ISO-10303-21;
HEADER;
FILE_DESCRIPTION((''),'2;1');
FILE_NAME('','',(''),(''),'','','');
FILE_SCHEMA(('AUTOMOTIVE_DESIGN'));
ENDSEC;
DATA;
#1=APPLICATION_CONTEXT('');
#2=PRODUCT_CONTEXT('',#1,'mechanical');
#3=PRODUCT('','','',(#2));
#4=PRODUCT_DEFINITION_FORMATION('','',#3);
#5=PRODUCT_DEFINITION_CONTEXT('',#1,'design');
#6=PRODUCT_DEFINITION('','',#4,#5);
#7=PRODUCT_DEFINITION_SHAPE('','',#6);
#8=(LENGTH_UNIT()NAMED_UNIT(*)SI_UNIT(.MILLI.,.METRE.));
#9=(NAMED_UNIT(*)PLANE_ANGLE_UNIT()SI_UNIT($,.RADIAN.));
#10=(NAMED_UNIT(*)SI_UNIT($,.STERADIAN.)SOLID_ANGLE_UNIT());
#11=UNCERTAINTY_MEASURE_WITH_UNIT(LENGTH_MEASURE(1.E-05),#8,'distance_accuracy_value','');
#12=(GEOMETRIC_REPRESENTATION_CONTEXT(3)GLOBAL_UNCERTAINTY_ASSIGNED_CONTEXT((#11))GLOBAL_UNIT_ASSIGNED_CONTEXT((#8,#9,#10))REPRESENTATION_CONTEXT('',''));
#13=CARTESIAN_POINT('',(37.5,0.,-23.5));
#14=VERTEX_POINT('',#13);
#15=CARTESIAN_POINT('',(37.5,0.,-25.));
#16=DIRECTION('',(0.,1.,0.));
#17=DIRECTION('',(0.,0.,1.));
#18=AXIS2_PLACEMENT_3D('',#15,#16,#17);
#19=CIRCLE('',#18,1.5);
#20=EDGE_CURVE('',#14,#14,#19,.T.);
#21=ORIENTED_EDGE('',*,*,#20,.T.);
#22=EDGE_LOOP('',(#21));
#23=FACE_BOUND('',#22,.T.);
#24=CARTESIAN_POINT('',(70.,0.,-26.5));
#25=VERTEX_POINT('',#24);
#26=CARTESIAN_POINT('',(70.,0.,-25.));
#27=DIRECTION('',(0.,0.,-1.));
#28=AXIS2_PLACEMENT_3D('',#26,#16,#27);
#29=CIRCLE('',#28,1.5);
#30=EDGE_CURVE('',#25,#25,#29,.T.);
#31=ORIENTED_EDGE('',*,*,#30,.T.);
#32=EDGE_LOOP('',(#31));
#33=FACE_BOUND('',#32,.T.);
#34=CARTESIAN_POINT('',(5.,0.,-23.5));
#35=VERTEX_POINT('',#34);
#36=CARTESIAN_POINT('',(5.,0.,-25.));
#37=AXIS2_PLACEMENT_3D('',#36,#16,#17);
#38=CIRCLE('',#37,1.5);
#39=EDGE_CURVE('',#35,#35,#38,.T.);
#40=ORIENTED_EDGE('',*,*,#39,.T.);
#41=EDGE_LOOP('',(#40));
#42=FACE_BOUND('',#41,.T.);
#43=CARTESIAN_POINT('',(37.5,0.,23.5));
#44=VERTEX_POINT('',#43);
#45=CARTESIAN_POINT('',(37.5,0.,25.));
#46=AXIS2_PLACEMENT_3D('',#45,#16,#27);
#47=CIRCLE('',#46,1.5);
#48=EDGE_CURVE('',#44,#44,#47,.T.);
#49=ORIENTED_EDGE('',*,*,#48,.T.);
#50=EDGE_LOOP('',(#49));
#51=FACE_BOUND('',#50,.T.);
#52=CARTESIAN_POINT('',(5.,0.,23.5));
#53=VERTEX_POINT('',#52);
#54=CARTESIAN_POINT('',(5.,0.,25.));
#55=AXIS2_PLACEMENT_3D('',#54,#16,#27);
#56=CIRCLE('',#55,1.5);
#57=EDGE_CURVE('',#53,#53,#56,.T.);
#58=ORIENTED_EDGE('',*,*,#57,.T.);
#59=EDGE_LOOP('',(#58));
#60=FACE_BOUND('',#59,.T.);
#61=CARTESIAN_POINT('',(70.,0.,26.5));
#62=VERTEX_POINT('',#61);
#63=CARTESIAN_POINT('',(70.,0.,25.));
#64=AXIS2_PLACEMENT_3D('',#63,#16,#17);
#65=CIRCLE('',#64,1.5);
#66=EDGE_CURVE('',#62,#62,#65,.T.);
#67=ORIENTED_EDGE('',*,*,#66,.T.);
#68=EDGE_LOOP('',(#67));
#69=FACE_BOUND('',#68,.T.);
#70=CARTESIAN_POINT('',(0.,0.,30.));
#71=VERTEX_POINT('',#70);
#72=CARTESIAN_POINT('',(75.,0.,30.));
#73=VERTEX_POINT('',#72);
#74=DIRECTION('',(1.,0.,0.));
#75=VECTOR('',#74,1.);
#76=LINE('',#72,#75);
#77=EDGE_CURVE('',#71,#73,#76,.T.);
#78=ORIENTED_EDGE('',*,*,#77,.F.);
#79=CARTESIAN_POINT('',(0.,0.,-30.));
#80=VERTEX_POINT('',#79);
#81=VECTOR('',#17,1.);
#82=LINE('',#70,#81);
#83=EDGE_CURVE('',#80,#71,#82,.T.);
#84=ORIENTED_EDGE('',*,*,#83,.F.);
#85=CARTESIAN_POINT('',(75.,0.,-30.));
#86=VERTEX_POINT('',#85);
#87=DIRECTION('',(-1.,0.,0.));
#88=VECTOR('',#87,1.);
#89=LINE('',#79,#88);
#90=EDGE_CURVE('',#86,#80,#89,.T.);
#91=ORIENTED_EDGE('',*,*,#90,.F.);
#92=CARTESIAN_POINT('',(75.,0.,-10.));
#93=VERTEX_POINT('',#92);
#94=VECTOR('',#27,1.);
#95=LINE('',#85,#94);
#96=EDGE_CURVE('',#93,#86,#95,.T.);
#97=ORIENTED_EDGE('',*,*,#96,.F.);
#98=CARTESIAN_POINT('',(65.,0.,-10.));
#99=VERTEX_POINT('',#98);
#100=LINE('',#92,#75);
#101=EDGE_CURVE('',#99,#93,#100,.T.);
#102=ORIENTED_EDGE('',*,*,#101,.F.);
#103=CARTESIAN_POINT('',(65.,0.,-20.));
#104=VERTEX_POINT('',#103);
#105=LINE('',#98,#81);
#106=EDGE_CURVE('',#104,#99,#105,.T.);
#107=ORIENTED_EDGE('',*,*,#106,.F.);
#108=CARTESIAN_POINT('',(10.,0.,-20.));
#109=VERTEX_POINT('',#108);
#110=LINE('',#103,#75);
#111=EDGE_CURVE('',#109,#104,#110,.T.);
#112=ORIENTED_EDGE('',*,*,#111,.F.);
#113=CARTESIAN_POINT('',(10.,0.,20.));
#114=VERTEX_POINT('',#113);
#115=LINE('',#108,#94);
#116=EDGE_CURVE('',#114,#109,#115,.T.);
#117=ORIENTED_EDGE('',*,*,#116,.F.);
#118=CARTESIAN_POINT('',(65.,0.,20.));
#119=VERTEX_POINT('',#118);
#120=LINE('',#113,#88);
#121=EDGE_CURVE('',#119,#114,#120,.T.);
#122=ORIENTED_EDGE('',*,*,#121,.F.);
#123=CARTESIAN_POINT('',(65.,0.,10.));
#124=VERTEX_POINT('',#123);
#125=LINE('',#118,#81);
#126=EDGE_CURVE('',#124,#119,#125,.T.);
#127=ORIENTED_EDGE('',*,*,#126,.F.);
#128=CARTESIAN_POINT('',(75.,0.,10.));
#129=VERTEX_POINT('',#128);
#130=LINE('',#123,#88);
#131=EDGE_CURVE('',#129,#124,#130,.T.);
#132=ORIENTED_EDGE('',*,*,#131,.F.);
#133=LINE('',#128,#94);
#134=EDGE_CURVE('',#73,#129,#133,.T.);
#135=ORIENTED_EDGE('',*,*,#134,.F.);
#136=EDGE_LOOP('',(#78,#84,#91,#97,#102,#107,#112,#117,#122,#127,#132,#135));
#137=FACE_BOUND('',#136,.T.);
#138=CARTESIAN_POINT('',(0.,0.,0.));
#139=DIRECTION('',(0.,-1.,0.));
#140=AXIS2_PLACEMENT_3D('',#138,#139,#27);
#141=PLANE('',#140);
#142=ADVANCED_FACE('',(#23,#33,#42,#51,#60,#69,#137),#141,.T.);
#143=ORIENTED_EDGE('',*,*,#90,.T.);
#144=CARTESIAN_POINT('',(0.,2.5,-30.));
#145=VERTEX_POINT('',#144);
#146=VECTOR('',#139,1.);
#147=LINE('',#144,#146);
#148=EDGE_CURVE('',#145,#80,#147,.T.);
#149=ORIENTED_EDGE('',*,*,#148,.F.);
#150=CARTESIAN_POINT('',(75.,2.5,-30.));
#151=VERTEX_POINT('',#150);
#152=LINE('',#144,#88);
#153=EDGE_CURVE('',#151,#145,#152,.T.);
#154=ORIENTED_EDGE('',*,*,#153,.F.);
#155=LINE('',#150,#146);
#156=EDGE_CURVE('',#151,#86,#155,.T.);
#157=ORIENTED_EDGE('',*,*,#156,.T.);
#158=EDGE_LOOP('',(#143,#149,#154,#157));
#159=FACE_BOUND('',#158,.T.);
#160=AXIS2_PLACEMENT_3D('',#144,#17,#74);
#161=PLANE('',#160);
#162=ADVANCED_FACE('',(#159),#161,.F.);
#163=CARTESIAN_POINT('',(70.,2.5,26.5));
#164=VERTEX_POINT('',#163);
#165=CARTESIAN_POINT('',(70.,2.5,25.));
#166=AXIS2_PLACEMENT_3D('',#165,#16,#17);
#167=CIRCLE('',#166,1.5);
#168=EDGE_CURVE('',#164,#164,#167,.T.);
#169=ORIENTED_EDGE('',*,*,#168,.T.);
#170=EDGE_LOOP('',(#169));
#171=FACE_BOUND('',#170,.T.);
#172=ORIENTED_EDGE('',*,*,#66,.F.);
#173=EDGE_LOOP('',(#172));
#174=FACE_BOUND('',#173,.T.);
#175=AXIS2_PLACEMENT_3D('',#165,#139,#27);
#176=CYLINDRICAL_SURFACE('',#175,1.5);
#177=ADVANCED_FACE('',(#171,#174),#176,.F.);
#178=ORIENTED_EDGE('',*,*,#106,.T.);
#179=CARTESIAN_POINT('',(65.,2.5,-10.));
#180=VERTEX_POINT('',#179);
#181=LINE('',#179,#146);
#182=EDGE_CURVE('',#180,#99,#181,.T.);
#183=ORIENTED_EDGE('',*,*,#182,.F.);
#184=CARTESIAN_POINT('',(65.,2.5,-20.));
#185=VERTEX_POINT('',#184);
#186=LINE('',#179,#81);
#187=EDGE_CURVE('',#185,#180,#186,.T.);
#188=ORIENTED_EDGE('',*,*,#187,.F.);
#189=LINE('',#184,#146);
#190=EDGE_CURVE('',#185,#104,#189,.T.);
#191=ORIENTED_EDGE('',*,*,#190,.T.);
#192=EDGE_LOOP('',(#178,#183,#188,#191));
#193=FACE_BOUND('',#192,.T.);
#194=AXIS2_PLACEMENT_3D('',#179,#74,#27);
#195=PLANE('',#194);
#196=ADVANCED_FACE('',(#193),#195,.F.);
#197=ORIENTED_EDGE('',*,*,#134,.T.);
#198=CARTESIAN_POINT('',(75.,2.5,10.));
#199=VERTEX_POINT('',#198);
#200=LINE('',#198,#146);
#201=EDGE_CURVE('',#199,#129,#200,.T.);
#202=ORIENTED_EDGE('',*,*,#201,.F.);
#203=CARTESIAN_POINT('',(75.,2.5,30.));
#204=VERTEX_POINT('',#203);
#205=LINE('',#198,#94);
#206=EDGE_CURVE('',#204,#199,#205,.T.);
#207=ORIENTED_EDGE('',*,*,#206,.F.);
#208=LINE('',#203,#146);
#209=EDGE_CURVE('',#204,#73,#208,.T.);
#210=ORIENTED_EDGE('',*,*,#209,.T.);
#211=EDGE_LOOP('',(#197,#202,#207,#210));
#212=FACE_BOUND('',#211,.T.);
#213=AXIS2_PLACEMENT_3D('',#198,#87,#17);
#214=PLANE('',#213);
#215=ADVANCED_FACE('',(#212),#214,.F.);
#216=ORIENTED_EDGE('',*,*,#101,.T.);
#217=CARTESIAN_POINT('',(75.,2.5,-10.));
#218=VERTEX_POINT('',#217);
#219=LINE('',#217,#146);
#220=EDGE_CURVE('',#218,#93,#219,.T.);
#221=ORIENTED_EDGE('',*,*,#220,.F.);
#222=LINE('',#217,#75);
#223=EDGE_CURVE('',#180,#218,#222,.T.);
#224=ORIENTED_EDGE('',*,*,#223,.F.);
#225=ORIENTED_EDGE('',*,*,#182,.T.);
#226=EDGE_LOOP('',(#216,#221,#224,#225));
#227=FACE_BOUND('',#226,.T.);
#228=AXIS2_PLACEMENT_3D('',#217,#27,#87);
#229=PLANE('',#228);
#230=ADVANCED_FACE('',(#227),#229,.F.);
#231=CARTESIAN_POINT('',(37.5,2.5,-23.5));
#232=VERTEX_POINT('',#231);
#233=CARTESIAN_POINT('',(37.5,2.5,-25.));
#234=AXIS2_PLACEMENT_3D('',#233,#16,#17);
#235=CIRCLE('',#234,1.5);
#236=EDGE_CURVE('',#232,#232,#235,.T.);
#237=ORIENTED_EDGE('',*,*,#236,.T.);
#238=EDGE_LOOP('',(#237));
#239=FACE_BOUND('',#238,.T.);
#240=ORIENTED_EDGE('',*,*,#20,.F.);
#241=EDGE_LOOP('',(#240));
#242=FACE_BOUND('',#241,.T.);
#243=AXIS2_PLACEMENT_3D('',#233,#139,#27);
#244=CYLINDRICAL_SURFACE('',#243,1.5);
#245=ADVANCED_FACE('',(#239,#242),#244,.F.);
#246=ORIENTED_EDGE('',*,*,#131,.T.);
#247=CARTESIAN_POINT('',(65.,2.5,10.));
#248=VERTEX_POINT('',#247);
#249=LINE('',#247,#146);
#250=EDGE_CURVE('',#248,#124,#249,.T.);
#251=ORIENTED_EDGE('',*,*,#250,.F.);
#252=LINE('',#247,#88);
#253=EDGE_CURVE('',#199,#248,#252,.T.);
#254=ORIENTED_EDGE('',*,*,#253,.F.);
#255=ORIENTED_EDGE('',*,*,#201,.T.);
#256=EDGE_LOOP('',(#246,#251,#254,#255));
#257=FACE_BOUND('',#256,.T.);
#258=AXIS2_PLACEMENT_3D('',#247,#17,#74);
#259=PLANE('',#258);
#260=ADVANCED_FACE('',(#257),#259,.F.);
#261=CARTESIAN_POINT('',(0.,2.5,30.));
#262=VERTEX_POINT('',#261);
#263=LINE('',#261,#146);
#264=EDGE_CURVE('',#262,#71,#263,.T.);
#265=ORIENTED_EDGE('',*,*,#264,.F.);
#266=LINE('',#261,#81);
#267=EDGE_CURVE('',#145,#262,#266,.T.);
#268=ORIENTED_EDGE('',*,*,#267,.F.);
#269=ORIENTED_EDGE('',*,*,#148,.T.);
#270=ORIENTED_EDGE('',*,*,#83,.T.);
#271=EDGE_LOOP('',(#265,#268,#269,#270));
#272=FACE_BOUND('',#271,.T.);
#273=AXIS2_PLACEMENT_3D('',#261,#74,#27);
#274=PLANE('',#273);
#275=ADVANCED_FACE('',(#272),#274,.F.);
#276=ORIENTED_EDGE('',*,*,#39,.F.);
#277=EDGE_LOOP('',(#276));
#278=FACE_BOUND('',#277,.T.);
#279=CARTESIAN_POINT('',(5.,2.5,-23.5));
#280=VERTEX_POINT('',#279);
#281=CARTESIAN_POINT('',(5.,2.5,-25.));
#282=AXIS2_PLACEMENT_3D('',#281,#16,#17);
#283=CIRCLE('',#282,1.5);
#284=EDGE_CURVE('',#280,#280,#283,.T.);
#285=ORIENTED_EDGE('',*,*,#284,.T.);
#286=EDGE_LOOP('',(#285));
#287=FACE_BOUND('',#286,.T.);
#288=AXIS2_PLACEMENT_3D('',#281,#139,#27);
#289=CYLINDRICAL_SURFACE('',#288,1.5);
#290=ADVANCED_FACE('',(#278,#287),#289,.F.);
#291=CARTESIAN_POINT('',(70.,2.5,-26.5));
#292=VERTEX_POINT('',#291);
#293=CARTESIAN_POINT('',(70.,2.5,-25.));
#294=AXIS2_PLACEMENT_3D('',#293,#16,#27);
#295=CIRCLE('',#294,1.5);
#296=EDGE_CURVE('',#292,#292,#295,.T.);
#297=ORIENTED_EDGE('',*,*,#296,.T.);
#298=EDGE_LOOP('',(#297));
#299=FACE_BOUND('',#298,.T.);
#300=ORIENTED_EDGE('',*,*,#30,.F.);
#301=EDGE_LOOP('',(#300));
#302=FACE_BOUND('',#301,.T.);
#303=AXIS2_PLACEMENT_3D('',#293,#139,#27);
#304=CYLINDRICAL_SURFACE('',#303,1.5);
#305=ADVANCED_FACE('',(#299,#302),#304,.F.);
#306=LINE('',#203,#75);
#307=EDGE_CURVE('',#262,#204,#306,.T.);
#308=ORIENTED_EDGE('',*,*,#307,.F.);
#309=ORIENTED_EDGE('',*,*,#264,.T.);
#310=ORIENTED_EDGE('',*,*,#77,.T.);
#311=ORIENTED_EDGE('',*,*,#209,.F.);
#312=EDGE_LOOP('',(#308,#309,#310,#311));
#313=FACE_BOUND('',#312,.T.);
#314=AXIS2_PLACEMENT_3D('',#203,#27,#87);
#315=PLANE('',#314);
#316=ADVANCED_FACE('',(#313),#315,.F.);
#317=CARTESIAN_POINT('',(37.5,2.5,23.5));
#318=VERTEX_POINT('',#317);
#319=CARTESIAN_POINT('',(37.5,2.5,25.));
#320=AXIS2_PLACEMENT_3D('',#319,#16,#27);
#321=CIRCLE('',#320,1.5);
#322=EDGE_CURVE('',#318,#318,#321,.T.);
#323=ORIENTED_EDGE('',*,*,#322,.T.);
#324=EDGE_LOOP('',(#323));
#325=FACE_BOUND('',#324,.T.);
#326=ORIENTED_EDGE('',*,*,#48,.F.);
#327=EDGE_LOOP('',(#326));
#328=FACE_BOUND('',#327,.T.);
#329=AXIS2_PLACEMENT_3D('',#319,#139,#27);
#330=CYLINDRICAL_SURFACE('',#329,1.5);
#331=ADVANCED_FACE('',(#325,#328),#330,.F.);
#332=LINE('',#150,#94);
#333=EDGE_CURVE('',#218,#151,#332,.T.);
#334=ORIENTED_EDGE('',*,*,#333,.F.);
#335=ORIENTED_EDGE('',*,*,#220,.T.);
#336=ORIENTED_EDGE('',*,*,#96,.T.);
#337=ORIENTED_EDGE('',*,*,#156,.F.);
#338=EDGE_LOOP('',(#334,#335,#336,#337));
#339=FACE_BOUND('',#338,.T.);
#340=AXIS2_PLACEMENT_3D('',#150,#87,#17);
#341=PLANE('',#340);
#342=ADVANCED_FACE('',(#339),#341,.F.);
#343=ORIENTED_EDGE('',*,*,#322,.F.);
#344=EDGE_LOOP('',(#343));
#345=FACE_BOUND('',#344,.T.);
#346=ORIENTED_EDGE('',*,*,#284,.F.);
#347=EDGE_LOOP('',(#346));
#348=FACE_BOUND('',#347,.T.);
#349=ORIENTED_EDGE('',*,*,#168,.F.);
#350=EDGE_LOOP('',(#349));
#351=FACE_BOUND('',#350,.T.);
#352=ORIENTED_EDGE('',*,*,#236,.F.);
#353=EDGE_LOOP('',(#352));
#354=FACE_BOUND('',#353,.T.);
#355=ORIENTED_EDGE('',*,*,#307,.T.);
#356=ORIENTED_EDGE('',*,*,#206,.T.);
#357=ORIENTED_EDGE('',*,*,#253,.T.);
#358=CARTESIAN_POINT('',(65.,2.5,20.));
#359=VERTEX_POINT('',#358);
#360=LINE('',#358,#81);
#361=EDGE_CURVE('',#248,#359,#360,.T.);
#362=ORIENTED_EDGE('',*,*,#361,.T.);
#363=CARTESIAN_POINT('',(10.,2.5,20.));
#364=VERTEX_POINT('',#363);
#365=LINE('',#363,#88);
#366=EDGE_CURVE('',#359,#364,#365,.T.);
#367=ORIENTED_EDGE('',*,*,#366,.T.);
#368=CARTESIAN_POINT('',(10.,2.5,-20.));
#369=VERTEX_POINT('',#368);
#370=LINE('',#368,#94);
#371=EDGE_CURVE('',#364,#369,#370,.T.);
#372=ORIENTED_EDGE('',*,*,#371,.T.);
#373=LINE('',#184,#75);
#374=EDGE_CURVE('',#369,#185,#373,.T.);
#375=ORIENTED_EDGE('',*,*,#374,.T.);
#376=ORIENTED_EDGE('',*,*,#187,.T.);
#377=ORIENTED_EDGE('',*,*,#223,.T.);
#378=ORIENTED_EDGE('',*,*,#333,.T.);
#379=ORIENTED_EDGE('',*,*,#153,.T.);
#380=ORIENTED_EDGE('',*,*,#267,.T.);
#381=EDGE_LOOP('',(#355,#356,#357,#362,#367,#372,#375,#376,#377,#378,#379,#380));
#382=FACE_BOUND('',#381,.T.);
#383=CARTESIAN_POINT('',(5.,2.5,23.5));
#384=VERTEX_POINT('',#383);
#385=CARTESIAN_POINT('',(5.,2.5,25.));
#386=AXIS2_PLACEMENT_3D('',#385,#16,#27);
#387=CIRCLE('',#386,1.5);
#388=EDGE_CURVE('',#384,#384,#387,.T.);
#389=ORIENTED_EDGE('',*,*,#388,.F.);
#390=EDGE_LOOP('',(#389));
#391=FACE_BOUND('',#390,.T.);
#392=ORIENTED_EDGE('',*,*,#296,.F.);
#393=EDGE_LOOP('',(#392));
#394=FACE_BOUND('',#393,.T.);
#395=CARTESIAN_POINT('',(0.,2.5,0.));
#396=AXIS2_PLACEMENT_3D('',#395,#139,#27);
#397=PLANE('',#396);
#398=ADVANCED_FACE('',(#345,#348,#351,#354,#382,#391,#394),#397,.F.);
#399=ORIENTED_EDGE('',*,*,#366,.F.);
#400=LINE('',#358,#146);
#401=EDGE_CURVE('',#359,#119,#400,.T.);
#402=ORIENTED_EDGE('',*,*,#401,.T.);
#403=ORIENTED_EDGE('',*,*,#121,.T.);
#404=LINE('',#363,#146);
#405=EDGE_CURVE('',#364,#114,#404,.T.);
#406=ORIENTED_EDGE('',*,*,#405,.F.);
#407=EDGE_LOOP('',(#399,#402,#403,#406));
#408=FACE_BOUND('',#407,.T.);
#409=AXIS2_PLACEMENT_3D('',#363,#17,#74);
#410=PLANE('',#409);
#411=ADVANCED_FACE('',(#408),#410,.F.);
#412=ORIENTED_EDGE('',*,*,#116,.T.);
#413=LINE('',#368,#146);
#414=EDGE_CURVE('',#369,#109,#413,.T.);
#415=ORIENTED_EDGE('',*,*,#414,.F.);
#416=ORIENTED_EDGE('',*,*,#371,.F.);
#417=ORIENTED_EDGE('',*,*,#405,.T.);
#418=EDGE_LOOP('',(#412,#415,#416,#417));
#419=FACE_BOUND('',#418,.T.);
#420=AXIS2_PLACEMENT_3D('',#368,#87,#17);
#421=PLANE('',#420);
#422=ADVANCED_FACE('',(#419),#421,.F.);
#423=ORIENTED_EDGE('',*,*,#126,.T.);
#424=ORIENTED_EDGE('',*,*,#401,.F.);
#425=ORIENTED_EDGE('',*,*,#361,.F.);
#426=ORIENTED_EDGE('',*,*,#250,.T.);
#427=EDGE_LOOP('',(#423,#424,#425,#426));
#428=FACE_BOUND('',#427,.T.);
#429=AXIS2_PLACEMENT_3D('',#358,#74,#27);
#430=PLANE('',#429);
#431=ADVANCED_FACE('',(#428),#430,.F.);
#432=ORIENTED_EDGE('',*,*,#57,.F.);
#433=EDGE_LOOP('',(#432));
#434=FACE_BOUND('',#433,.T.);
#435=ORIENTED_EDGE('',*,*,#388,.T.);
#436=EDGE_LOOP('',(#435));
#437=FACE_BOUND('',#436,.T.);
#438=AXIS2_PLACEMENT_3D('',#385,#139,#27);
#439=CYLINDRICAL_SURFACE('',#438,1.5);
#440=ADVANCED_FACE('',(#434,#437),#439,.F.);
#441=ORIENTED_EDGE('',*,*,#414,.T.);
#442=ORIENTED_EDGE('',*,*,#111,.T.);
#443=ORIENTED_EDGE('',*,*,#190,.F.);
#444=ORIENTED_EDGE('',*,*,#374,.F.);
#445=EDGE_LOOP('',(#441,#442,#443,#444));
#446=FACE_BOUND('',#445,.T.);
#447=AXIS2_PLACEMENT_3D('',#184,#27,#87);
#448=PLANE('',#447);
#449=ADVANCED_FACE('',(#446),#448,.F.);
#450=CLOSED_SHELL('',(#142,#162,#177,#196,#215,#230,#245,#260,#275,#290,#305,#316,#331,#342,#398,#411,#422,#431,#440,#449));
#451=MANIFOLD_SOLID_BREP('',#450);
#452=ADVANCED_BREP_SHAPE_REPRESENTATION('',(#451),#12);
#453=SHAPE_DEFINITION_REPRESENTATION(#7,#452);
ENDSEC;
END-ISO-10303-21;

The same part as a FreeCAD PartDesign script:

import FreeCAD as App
import Part
import Sketcher
from FreeCAD import Vector
Q = App.Units.Quantity


def add_polygon(sketch, points):
    """Adds a closed chain of lines whose ends are joined by coincident constraints."""
    first, n = sketch.GeometryCount, len(points)
    for a, b in zip(points, points[1:] + points[:1]):
        sketch.addGeometry(Part.LineSegment(App.Vector(*a, 0), App.Vector(*b, 0)), False)
    for i in range(n):
        sketch.addConstraint(Sketcher.Constraint("Coincident", first + i, 2, first + (i + 1) % n, 1))

doc = App.newDocument("Part")
body = doc.addObject("PartDesign::Body", "Body")

sketch1 = body.newObject("Sketcher::SketchObject", "Sketch")
sketch1.AttachmentSupport = (doc.getObject("XZ_Plane"), [""])
sketch1.MapMode = "FlatFace"
add_polygon(sketch1, [(0, -30), (0, 30), (75, 30), (75, 10), (65, 10), (65, 20), (10, 20), (10, -20), (65, -20), (65, -10), (75, -10), (75, -30)])
sketch1.addConstraint([
    Sketcher.Constraint("Vertical", 0),
    Sketcher.Constraint("Horizontal", 1),
    Sketcher.Constraint("Vertical", 2),
    Sketcher.Constraint("Horizontal", 3),
    Sketcher.Constraint("Vertical", 4),
    Sketcher.Constraint("Horizontal", 5),
    Sketcher.Constraint("Vertical", 6),
    Sketcher.Constraint("Horizontal", 7),
    Sketcher.Constraint("Vertical", 8),
    Sketcher.Constraint("Horizontal", 9),
    Sketcher.Constraint("Vertical", 10),
    Sketcher.Constraint("Horizontal", 11),
    Sketcher.Constraint("Symmetric", 0, 2, 11, 2, -1, 1),
    Sketcher.Constraint("Symmetric", 4, 2, 7, 2, -1),
    Sketcher.Constraint("Symmetric", 2, 2, 9, 2, -1),
    Sketcher.Constraint("Equal", 9, 4),
    Sketcher.Constraint("DistanceX", 1, 1, 1, 2, Q("75 mm")),
    Sketcher.Constraint("DistanceX", 3, 2, 3, 1, Q("10 mm")),
    Sketcher.Constraint("DistanceX", 5, 2, 5, 1, Q("55 mm")),
    Sketcher.Constraint("DistanceY", 0, 1, 0, 2, Q("60 mm")),
    Sketcher.Constraint("DistanceY", 2, 2, 2, 1, Q("20 mm")),
])
pad1 = body.newObject("PartDesign::Pad", "Pad")
pad1.Profile = sketch1
pad1.Length = 2.5
pad1.Reversed = True

sketch2 = body.newObject("Sketcher::SketchObject", "Sketch001")
sketch2.AttachmentSupport = (doc.getObject("XZ_Plane"), [""])
sketch2.MapMode = "FlatFace"
sketch2.addGeometry([
    Part.Circle(Vector(5, -25, 0), Vector(0, 0, 1), 1.5),
    Part.Circle(Vector(70, -25, 0), Vector(0, 0, 1), 1.5),
    Part.Circle(Vector(70, 25, 0), Vector(0, 0, 1), 1.5),
    Part.Circle(Vector(5, 25, 0), Vector(0, 0, 1), 1.5),
    Part.Circle(Vector(37.5, 25, 0), Vector(0, 0, 1), 1.5),
    Part.Circle(Vector(37.5, -25, 0), Vector(0, 0, 1), 1.5),
], False)
sketch2.addConstraint([
    Sketcher.Constraint("Equal", 0, 1),
    Sketcher.Constraint("Equal", 1, 2),
    Sketcher.Constraint("Equal", 2, 3),
    Sketcher.Constraint("Equal", 3, 4),
    Sketcher.Constraint("Equal", 4, 5),
    Sketcher.Constraint("Symmetric", 1, 3, 2, 3, -1),
    Sketcher.Constraint("Symmetric", 0, 3, 3, 3, -1),
    Sketcher.Constraint("Symmetric", 4, 3, 5, 3, -1),
    Sketcher.Constraint("Horizontal", 0, 3, 1, 3),
    Sketcher.Constraint("Horizontal", 3, 3, 4, 3),
    Sketcher.Constraint("Diameter", 0, Q("3 mm")),
    Sketcher.Constraint("DistanceX", -1, 1, 0, 3, Q("5 mm")),
    Sketcher.Constraint("DistanceY", 0, 3, -1, 1, Q("25 mm")),
    Sketcher.Constraint("DistanceX", -1, 1, 1, 3, Q("70 mm")),
    Sketcher.Constraint("DistanceX", -1, 1, 4, 3, Q("37.5 mm")),
])
pocket1 = body.newObject("PartDesign::Pocket", "Pocket")
pocket1.Profile = sketch2
pocket1.Type = "ThroughAll"

doc.recompute()
